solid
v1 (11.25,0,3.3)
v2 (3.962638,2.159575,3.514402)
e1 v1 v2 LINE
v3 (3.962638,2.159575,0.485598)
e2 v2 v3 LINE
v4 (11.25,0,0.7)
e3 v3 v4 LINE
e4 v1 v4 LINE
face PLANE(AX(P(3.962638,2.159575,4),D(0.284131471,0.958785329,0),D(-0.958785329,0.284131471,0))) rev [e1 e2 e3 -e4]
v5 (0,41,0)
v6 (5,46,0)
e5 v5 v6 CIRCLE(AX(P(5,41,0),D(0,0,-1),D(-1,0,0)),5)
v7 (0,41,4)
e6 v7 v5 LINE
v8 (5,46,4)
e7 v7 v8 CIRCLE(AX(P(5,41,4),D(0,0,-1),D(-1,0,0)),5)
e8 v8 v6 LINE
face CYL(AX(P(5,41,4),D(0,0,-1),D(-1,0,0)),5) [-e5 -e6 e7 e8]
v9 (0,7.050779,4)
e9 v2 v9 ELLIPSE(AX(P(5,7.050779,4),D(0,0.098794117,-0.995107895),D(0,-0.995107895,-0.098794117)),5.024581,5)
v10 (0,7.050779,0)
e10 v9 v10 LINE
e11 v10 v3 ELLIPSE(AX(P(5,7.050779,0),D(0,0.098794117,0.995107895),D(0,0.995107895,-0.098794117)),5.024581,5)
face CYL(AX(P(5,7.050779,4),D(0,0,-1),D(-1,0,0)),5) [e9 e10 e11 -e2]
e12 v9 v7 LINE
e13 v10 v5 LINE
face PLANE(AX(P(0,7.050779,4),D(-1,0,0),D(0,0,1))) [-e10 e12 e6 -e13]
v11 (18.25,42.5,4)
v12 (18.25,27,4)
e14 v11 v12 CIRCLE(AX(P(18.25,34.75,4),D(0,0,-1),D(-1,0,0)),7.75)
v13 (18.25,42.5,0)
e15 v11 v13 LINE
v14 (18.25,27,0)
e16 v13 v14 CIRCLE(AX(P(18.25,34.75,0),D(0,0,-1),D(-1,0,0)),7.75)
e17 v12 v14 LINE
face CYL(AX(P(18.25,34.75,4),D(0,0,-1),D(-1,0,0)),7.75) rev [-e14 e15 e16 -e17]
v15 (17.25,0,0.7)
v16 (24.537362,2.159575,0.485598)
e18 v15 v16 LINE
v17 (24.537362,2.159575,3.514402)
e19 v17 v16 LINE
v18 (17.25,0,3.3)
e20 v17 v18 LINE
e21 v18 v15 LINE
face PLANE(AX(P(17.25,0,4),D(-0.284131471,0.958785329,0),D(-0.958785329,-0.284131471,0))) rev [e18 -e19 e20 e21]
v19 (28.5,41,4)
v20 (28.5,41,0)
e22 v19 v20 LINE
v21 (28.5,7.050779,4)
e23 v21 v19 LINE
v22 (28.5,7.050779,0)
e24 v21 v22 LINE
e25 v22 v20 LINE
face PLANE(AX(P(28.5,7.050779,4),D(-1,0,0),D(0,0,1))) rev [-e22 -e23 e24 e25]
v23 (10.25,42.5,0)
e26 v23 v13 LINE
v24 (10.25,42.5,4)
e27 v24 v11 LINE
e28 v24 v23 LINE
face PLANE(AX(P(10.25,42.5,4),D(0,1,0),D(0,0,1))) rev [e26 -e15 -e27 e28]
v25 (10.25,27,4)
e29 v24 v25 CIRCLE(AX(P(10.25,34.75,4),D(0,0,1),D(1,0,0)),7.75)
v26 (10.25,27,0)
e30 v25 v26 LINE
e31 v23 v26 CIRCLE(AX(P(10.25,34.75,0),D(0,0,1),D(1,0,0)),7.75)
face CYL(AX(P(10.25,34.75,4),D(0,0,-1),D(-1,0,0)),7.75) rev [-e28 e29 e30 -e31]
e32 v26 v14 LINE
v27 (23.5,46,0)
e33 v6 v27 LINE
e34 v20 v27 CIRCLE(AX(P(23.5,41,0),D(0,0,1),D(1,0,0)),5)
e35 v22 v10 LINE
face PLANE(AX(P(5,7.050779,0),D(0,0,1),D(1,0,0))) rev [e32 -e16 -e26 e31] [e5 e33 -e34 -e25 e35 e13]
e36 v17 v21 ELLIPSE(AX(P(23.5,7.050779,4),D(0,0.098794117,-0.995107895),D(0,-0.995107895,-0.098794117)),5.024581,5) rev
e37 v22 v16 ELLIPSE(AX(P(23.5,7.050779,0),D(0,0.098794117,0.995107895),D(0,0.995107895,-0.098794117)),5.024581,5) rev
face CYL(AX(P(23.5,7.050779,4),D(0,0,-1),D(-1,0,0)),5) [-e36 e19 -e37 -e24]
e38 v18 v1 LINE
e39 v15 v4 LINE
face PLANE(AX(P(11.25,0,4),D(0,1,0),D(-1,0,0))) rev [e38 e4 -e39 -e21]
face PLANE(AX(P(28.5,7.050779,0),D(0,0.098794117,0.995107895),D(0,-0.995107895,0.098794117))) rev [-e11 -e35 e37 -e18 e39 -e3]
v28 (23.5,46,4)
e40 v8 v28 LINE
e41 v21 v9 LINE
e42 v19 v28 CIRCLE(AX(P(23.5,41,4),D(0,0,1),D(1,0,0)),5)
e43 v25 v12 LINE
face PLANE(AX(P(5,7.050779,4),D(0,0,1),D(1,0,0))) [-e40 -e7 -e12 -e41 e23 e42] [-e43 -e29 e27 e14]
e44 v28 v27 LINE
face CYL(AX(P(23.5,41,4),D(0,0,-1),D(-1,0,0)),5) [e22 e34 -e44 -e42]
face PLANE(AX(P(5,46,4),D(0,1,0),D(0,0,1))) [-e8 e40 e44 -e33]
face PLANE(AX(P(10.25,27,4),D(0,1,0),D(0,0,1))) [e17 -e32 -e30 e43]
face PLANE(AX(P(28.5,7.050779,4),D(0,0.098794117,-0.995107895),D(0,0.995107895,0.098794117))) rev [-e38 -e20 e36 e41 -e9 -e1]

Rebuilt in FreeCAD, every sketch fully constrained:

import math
import FreeCAD as App
import Part
import Sketcher

V = App.Vector

doc = App.newDocument("Part")
body = doc.addObject("PartDesign::Body", "Body")

sketch1 = body.newObject("Sketcher::SketchObject", "Sketch")
sketch1.AttachmentSupport = (doc.getObject("XY_Plane"), [""])
sketch1.MapMode = "FlatFace"
sketch1.addGeometry([
    Part.LineSegment(V(0, 41, 0), V(0, 7.1, 0)),
    Part.ArcOfCircle(Part.Circle(V(5, 7.1, 0), V(0, 0, 1), 5), math.radians(180), math.radians(258)),
    Part.LineSegment(V(4, 2.2, 0), V(11.2, 0, 0)),
    Part.LineSegment(V(11.2, 0, 0), V(17.2, 0, 0)),
    Part.LineSegment(V(17.2, 0, 0), V(24.5, 2.2, 0)),
    Part.ArcOfCircle(Part.Circle(V(23.5, 7.1, 0), V(0, 0, 1), 5), math.radians(-78), math.radians(0)),
    Part.LineSegment(V(28.5, 7.1, 0), V(28.5, 41, 0)),
    Part.ArcOfCircle(Part.Circle(V(23.5, 41, 0), V(0, 0, 1), 5), math.radians(0), math.radians(90)),
    Part.LineSegment(V(23.5, 46, 0), V(5, 46, 0)),
    Part.ArcOfCircle(Part.Circle(V(5, 41, 0), V(0, 0, 1), 5), math.radians(90), math.radians(180)),
    Part.LineSegment(V(10.2, 42.5, 0), V(18.2, 42.5, 0)),
    Part.ArcOfCircle(Part.Circle(V(18.2, 34.8, 0), V(0, 0, 1), 7.8), math.radians(-90), math.radians(90)),
    Part.LineSegment(V(18.2, 27, 0), V(10.2, 27, 0)),
    Part.ArcOfCircle(Part.Circle(V(10.2, 34.8, 0), V(0, 0, 1), 7.8), math.radians(90), math.radians(270)),
], False)
sketch1.addConstraint([
    Sketcher.Constraint("Tangent", 0, 2, 1, 1),
    Sketcher.Constraint("Coincident", 1, 2, 2, 1),
    Sketcher.Constraint("Coincident", 2, 2, 3, 1),
    Sketcher.Constraint("Coincident", 3, 2, 4, 1),
    Sketcher.Constraint("Coincident", 4, 2, 5, 1),
    Sketcher.Constraint("Tangent", 5, 2, 6, 1),
    Sketcher.Constraint("Tangent", 6, 2, 7, 1),
    Sketcher.Constraint("Tangent", 7, 2, 8, 1),
    Sketcher.Constraint("Tangent", 8, 2, 9, 1),
    Sketcher.Constraint("Tangent", 9, 2, 0, 1),
    Sketcher.Constraint("Tangent", 10, 2, 11, 2),
    Sketcher.Constraint("Tangent", 11, 1, 12, 1),
    Sketcher.Constraint("Tangent", 12, 2, 13, 2),
    Sketcher.Constraint("Tangent", 13, 1, 10, 1),
    Sketcher.Constraint("Vertical", 0),
    Sketcher.Constraint("Horizontal", 3),
    Sketcher.Constraint("Vertical", 6),
    Sketcher.Constraint("Horizontal", 8),
    Sketcher.Constraint("Horizontal", 10),
    Sketcher.Constraint("Horizontal", 12),
    Sketcher.Constraint("Equal", 1, 5),
    Sketcher.Constraint("Equal", 5, 7),
    Sketcher.Constraint("Equal", 7, 9),
    Sketcher.Constraint("PointOnObject", 0, 2, -2),
    Sketcher.Constraint("PointOnObject", 2, 2, -1),
    Sketcher.Constraint("Horizontal", 1, 3, 5, 3),
    Sketcher.Constraint("Horizontal", 1, 2, 4, 2),
    Sketcher.Constraint("Equal", 2, 4),
    Sketcher.Constraint("Radius", 1, 5.0),
    Sketcher.Constraint("DistanceX", 3, 1, 3, 2, 6.0),
    Sketcher.Constraint("DistanceX", 10, 1, 10, 2, 8.0),
    Sketcher.Constraint("Radius", 11, 7.75),
    Sketcher.Constraint("DistanceX", 8, 2, 8, 1, 18.5),
    Sketcher.Constraint("DistanceY", -1, 1, 7, 3, 41.0),
    Sketcher.Constraint("DistanceY", -1, 1, 11, 1, 27.0),
    Sketcher.Constraint("DistanceX", 13, 3, 2, 2, 1.0),
    Sketcher.Constraint("DistanceY", 0, 2, 0, 1, 33.949221),
    Sketcher.Constraint("Distance", 2, 7.600619),
])
pad1 = body.newObject("PartDesign::Pad", "Pad")
pad1.Profile = sketch1
pad1.Length = 4

sketch2 = body.newObject("Sketcher::SketchObject", "Sketch001")
sketch2.AttachmentSupport = (doc.getObject("YZ_Plane"), [""])
sketch2.MapMode = "FlatFace"
sketch2.addGeometry([
    Part.LineSegment(V(7.1, 0, 0), V(0, 0, 0)),
    Part.LineSegment(V(0, 0, 0), V(0, 0.7, 0)),
    Part.LineSegment(V(0, 0.7, 0), V(7.1, 0, 0)),
    Part.LineSegment(V(7.1, 4, 0), V(0, 3.3, 0)),
    Part.LineSegment(V(0, 3.3, 0), V(0, 4, 0)),
    Part.LineSegment(V(0, 4, 0), V(7.1, 4, 0)),
], False)
sketch2.addConstraint([
    Sketcher.Constraint("Coincident", 0, 2, 1, 1),
    Sketcher.Constraint("Coincident", 1, 2, 2, 1),
    Sketcher.Constraint("Coincident", 2, 2, 0, 1),
    Sketcher.Constraint("Coincident", 3, 2, 4, 1),
    Sketcher.Constraint("Coincident", 4, 2, 5, 1),
    Sketcher.Constraint("Coincident", 5, 2, 3, 1),
    Sketcher.Constraint("Horizontal", 0),
    Sketcher.Constraint("Vertical", 1),
    Sketcher.Constraint("Vertical", 4),
    Sketcher.Constraint("Horizontal", 5),
    Sketcher.Constraint("Coincident", 0, 2, -1, 1),
    Sketcher.Constraint("PointOnObject", 3, 2, -2),
    Sketcher.Constraint("Vertical", 2, 2, 5, 2),
    Sketcher.Constraint("Equal", 1, 4),
    Sketcher.Constraint("DistanceY", 1, 1, 1, 2, 0.7),
    Sketcher.Constraint("DistanceY", -1, 1, 4, 2, 4.0),
    Sketcher.Constraint("DistanceX", 0, 2, 0, 1, 7.050779),
])
pocket1 = body.newObject("PartDesign::Pocket", "Pocket")
pocket1.Profile = sketch2
pocket1.Type = "ThroughAll"
pocket1.Reversed = True

doc.recompute()
